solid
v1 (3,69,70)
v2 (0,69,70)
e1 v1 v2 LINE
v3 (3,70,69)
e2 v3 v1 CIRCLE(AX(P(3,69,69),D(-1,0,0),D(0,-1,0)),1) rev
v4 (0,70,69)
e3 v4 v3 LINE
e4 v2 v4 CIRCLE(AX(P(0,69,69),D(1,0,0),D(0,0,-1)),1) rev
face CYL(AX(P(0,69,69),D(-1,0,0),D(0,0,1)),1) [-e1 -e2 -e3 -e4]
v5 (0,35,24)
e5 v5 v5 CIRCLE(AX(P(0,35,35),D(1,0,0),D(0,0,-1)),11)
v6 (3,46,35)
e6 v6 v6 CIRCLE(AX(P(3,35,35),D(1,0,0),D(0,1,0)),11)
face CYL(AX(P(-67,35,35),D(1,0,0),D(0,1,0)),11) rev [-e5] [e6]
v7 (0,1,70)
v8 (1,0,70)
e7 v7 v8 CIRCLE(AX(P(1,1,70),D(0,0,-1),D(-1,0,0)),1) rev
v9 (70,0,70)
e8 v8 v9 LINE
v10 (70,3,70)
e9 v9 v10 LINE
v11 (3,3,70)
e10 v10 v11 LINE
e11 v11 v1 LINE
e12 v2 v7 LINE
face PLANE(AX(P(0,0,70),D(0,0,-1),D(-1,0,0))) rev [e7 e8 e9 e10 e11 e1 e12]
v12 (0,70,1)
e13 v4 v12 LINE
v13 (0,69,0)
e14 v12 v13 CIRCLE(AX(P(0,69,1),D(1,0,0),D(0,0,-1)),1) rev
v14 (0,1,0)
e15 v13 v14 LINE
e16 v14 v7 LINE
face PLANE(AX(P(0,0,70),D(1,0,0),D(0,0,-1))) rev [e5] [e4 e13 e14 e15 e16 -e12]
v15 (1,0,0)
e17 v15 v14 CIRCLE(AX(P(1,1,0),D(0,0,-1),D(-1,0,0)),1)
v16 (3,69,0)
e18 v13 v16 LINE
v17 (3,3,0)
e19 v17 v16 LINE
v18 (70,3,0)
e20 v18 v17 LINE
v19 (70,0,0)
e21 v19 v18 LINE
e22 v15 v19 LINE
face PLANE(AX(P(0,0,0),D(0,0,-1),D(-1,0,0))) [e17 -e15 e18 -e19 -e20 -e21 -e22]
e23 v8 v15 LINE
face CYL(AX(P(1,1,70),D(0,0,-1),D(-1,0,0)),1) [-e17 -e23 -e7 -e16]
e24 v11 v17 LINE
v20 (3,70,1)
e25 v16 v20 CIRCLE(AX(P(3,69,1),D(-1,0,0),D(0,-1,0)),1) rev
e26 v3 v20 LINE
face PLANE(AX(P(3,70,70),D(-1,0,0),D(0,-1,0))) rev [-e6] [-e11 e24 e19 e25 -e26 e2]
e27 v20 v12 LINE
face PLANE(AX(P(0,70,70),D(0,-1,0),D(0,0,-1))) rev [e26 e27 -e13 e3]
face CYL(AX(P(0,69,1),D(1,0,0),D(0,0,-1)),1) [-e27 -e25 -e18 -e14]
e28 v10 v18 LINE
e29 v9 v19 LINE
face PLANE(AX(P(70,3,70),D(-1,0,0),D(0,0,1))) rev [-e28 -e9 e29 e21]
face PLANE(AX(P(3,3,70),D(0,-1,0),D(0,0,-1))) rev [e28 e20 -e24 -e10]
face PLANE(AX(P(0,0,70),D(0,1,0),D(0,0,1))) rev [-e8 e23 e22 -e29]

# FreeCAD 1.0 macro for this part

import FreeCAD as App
import Part
import Sketcher

V = App.Vector
Q = App.Units.Quantity


def edges_at(feature, points):
    """Names of the edges that pass closest to the given points."""
    edges = feature.Shape.Edges
    near = lambda p: min(range(len(edges)), key=lambda i: edges[i].distToShape(Part.Vertex(*p))[0])
    return sorted({f"Edge{near(p) + 1}" for p in points})


def add_polygon(sketch, points):
    """Adds a closed chain of lines whose ends are joined by coincident constraints."""
    first, n = sketch.GeometryCount, len(points)
    for a, b in zip(points, points[1:] + points[:1]):
        sketch.addGeometry(Part.LineSegment(App.Vector(*a, 0), App.Vector(*b, 0)), False)
    for i in range(n):
        sketch.addConstraint(Sketcher.Constraint("Coincident", first + i, 2, first + (i + 1) % n, 1))

doc = App.newDocument("Part")
params = doc.addObject("Spreadsheet::Sheet", "Params")
for row, (alias, value) in enumerate([
    ("sketch1_width", "70 mm"),
    ("sketch1_width2", "67 mm"),
    ("pad1_length", "70 mm"),
    ("sketch2_diameter", "22 mm"),
    ("pocket1_length", "70 mm"),
    ("fillet_radius", "1 mm"),
    ("fillet2_radius", "1 mm"),
], start=1):
    params.set(f"A{row}", alias)
    params.set(f"B{row}", "=" + value)
    params.setAlias(f"B{row}", alias)

body = doc.addObject("PartDesign::Body", "Body")

# Sketch on XY plane
sketch1 = body.newObject("Sketcher::SketchObject", "Sketch")
sketch1.AttachmentSupport = (doc.getObject("XY_Plane"), [""])
sketch1.MapMode = "FlatFace"
add_polygon(sketch1, [(0, 0), (70, 0), (70, 3), (3, 3), (3, 70), (0, 70)])  # lines 0-5
sketch1.addConstraint([
    Sketcher.Constraint("Horizontal", 0),
    Sketcher.Constraint("Vertical", 1),
    Sketcher.Constraint("Horizontal", 2),
    Sketcher.Constraint("Vertical", 3),
    Sketcher.Constraint("Horizontal", 4),
    Sketcher.Constraint("Vertical", 5),
    Sketcher.Constraint("Coincident", 5, 2, -1, 1),
    Sketcher.Constraint("Equal", 4, 1),
    Sketcher.Constraint("Equal", 2, 3),
    Sketcher.Constraint("DistanceX", 0, 1, 0, 2, Q("70 mm")),
    Sketcher.Constraint("DistanceX", 2, 2, 2, 1, Q("67 mm")),
])
sketch1.setExpression("Constraints[15]", "Params.sketch1_width")
sketch1.setExpression("Constraints[16]", "Params.sketch1_width2")
pad1 = body.newObject("PartDesign::Pad", "Pad")
pad1.Profile = sketch1
pad1.setExpression("Length", "Params.pad1_length")

# Sketch on YZ plane
sketch2 = body.newObject("Sketcher::SketchObject", "Sketch001")
sketch2.AttachmentSupport = (doc.getObject("YZ_Plane"), [""])
sketch2.MapMode = "FlatFace"
sketch2.AttachmentOffset = App.Placement(V(0, 0, 3), App.Rotation())
sketch2.addGeometry(Part.Circle(V(35, 35, 0), V(0, 0, 1), 11), False)
sketch2.addConstraint([
    Sketcher.Constraint("Diameter", 0, Q("22 mm")),
    Sketcher.Constraint("DistanceX", -1, 1, 0, 3, Q("35 mm")),
    Sketcher.Constraint("DistanceY", -1, 1, 0, 3, Q("35 mm")),
])
sketch2.setExpression("Constraints[0]", "Params.sketch2_diameter")
pocket1 = body.newObject("PartDesign::Pocket", "Pocket")
pocket1.Profile = sketch2
pocket1.setExpression("Length", "Params.pocket1_length")
doc.recompute()

fillet = body.newObject("PartDesign::Fillet", "Fillet")
fillet.Base = (pocket1, edges_at(pocket1, [(0, 0, 35)]))
fillet.setExpression("Radius", "Params.fillet_radius")
doc.recompute()

fillet2 = body.newObject("PartDesign::Fillet", "Fillet001")
fillet2.Base = (fillet, edges_at(fillet, [(1.5, 70, 70), (1.5, 70, 0)]))
fillet2.setExpression("Radius", "Params.fillet2_radius")

doc.recompute()
